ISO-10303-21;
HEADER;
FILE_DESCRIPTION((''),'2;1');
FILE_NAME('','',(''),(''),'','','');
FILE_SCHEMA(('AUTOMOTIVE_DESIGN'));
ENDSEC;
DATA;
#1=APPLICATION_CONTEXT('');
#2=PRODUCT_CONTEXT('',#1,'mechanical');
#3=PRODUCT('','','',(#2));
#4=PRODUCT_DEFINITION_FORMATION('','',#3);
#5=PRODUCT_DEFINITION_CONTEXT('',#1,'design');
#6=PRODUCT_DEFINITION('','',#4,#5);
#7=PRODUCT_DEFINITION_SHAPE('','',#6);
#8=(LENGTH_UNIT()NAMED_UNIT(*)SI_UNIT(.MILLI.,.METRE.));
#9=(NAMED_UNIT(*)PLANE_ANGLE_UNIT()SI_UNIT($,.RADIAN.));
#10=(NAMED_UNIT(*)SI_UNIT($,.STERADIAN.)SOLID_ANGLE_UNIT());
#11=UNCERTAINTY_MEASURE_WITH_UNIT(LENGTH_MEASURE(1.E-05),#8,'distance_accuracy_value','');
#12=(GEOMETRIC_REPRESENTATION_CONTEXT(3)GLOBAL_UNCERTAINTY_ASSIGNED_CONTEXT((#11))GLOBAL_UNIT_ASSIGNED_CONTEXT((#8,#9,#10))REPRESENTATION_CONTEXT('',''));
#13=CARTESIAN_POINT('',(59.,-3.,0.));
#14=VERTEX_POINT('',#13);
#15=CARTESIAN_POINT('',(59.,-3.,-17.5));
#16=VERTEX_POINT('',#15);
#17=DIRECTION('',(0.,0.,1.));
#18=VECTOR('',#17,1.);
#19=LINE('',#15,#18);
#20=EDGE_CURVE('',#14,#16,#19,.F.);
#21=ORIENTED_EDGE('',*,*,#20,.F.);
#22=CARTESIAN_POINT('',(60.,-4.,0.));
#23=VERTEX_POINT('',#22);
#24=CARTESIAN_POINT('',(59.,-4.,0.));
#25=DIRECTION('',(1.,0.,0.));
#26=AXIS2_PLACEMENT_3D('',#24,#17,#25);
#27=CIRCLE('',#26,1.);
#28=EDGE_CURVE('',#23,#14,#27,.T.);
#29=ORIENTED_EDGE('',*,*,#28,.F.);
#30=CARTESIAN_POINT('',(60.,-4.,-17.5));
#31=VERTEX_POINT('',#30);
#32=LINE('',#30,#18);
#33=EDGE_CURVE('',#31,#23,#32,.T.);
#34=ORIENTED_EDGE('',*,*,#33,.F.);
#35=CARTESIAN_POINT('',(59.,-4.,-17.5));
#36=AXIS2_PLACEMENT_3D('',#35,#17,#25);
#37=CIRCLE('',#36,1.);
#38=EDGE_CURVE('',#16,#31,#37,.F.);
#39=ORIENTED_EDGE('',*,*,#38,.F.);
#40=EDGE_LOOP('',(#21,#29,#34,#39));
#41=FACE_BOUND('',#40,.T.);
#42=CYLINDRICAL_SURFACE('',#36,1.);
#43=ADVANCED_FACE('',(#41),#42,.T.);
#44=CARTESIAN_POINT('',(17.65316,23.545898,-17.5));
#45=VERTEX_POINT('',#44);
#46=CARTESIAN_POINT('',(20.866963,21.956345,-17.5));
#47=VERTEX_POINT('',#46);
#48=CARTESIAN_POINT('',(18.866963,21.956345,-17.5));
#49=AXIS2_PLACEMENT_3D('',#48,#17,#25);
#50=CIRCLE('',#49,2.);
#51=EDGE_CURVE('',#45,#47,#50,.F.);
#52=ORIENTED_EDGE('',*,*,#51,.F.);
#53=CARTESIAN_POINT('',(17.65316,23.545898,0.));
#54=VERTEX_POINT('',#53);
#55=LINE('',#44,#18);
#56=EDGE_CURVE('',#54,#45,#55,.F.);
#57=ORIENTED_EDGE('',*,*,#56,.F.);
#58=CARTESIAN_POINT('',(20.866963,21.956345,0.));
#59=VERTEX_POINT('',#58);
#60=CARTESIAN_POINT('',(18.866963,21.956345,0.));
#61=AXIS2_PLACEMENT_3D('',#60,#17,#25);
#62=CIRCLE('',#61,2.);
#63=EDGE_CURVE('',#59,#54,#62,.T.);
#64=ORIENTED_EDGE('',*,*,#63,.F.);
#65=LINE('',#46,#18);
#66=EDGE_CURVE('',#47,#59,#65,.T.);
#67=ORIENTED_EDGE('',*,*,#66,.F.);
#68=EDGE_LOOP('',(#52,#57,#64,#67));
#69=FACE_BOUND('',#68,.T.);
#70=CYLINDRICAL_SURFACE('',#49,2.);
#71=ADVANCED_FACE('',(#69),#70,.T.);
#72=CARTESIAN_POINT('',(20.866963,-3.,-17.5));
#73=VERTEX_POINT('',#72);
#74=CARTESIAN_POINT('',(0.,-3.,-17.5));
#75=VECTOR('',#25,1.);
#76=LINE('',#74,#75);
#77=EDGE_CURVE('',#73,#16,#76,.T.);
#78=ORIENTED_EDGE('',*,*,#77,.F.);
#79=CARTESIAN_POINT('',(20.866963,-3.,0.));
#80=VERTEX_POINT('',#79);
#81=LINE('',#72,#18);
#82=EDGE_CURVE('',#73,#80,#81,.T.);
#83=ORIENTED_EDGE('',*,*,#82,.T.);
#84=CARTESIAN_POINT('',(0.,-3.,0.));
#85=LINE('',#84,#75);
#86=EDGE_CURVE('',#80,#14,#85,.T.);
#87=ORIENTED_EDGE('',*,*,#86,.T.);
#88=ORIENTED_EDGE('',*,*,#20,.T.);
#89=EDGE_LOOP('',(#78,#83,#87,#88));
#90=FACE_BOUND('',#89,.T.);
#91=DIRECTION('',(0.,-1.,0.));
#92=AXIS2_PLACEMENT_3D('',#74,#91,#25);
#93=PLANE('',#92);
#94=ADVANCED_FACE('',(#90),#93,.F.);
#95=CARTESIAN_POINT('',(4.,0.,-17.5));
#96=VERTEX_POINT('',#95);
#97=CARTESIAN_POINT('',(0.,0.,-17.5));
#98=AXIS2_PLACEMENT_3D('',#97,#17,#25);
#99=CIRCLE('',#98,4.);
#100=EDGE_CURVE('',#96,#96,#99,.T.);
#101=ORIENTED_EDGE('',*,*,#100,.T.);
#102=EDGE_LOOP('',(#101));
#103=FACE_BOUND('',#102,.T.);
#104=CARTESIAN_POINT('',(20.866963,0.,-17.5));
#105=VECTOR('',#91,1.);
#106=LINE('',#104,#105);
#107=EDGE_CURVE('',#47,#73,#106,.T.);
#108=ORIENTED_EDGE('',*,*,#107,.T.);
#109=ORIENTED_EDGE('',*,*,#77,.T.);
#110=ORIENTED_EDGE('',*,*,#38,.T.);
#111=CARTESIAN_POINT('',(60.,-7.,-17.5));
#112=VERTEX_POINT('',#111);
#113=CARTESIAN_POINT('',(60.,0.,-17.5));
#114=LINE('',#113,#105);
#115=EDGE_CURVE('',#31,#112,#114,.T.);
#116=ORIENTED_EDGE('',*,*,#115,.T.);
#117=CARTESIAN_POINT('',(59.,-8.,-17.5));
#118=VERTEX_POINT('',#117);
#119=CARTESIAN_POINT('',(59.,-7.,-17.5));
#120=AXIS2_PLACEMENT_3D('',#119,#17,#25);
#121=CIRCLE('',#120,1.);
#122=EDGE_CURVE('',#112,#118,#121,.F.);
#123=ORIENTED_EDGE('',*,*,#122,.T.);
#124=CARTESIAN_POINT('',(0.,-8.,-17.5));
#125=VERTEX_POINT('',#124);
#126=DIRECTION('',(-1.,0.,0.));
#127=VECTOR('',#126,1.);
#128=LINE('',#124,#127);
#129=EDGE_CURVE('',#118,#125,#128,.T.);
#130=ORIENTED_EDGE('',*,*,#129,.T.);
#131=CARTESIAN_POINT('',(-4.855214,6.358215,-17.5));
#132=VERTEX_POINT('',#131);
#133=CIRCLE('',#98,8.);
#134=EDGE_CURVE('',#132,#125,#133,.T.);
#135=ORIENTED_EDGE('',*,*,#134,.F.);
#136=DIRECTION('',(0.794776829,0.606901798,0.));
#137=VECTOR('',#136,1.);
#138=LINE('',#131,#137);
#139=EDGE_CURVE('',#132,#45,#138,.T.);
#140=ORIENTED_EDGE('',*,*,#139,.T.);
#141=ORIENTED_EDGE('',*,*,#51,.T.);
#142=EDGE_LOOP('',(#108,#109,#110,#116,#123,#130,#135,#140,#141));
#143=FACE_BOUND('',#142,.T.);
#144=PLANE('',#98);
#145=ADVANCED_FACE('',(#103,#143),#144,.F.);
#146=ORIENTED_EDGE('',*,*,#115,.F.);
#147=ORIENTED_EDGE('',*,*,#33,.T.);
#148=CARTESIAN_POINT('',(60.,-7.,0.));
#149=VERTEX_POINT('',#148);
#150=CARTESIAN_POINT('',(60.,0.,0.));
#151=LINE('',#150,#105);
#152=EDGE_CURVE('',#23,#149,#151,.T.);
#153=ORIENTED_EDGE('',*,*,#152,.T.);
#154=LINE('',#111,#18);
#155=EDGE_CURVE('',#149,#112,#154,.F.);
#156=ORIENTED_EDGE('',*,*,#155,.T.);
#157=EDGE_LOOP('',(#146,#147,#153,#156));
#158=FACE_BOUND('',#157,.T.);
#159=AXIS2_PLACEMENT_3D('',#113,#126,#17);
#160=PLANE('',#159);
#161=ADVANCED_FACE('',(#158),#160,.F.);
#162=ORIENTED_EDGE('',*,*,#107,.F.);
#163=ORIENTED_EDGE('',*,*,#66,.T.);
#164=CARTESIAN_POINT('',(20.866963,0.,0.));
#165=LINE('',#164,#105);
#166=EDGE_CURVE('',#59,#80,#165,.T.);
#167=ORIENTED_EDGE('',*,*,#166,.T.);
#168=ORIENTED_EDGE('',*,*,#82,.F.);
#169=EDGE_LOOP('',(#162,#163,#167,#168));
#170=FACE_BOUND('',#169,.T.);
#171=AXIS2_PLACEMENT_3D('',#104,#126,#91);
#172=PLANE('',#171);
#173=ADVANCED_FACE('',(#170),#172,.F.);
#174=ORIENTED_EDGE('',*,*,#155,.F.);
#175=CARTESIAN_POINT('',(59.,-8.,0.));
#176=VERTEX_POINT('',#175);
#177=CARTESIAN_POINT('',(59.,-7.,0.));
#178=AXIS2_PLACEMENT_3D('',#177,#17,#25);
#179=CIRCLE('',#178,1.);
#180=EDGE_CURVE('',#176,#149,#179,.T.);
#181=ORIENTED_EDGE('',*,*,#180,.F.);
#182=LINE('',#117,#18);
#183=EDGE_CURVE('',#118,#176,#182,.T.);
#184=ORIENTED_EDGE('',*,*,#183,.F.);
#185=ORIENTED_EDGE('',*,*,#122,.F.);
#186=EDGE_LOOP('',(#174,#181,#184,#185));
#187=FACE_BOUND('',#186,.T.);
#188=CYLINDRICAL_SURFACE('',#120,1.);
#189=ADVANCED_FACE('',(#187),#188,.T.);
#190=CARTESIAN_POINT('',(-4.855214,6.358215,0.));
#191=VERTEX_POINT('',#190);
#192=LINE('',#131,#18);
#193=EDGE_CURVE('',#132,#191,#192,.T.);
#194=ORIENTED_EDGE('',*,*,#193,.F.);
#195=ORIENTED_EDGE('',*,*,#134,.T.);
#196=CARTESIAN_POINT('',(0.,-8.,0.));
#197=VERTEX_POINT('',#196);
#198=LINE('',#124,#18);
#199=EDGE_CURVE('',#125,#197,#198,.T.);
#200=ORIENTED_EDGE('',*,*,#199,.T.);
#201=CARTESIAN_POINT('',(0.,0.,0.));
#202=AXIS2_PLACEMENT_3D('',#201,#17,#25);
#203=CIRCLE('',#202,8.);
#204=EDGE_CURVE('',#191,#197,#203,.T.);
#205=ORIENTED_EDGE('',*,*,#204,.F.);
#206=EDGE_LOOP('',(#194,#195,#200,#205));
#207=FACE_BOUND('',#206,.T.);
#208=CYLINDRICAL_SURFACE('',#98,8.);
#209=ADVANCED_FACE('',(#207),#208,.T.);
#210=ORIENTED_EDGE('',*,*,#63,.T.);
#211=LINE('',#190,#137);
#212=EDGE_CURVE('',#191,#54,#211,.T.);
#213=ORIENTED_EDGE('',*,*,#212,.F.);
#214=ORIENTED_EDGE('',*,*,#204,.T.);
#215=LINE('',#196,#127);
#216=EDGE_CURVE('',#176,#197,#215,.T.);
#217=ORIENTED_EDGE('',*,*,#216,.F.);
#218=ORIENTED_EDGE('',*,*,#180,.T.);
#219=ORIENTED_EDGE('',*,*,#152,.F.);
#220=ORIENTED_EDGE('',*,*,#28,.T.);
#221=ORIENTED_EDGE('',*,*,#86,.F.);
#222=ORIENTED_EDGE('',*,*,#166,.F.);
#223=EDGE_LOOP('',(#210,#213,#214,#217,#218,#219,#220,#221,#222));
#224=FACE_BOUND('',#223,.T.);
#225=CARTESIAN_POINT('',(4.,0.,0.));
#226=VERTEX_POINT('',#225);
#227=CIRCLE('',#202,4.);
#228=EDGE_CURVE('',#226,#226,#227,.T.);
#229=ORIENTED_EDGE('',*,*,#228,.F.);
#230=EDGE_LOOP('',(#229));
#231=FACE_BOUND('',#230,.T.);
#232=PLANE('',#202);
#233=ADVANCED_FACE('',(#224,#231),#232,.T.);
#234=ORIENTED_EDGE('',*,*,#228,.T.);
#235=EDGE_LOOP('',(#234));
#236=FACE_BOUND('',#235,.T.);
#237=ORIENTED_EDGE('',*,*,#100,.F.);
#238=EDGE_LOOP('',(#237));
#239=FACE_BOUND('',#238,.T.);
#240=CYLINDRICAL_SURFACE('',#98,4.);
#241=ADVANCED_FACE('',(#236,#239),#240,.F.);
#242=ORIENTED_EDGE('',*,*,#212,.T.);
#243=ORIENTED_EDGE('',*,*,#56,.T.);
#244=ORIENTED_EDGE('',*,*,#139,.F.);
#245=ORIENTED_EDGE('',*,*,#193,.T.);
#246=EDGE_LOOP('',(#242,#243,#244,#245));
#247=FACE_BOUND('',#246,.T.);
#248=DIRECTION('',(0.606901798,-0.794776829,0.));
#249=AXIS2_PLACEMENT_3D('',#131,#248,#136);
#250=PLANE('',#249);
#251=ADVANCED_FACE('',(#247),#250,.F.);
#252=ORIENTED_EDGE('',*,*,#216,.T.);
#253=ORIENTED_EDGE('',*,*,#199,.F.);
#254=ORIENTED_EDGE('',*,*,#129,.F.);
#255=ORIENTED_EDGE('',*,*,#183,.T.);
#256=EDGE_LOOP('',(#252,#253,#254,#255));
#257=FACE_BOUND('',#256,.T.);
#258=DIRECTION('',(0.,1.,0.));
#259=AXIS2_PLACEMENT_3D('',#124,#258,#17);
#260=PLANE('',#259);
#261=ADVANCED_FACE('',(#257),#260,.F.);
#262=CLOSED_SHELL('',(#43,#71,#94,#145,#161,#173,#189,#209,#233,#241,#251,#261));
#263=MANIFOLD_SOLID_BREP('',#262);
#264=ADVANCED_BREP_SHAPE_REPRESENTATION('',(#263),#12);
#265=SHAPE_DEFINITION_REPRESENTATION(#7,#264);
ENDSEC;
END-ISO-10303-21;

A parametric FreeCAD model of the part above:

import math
import FreeCAD as App
import Part
import Sketcher

V = App.Vector


def edges_at(feature, points):
    """Names of the edges that pass closest to the given points."""
    edges = feature.Shape.Edges
    near = lambda p: min(range(len(edges)), key=lambda i: edges[i].distToShape(Part.Vertex(*p))[0])
    return sorted({f"Edge{near(p) + 1}" for p in points})

doc = App.newDocument("Part")
body = doc.addObject("PartDesign::Body", "Body")

# Sketch on XY plane
sketch1 = body.newObject("Sketcher::SketchObject", "Sketch")
sketch1.AttachmentSupport = (doc.getObject("XY_Plane"), [""])
sketch1.MapMode = "FlatFace"
sketch1.addGeometry([
    Part.LineSegment(V(20.9, 26, 0), V(-4.9, 6.4, 0)),  # 0
    Part.ArcOfCircle(Part.Circle(V(0, 0, 0), V(0, 0, 1), 8), math.radians(127), math.radians(270)),  # 1
    Part.LineSegment(V(0, -8, 0), V(60, -8, 0)),  # 2
    Part.LineSegment(V(60, -8, 0), V(60, -3, 0)),  # 3
    Part.LineSegment(V(60, -3, 0), V(20.9, -3, 0)),  # 4
    Part.LineSegment(V(20.9, -3, 0), V(20.9, 26, 0)),  # 5
    Part.Circle(V(0, 0, 0), V(0, 0, 1), 4),  # 6
], False)
sketch1.addConstraint([
    Sketcher.Constraint("Tangent", 0, 2, 1, 1),
    Sketcher.Constraint("Tangent", 1, 2, 2, 1),
    Sketcher.Constraint("Coincident", 2, 2, 3, 1),
    Sketcher.Constraint("Coincident", 3, 2, 4, 1),
    Sketcher.Constraint("Coincident", 4, 2, 5, 1),
    Sketcher.Constraint("Coincident", 5, 2, 0, 1),
    Sketcher.Constraint("Horizontal", 2),
    Sketcher.Constraint("Vertical", 3),
    Sketcher.Constraint("Horizontal", 4),
    Sketcher.Constraint("Vertical", 5),
    Sketcher.Constraint("Coincident", 1, 3, -1, 1),
    Sketcher.Constraint("Coincident", 6, 3, -1, 1),
    Sketcher.Constraint("Diameter", 6, 8.0),
    Sketcher.Constraint("Radius", 1, 8.0),
    Sketcher.Constraint("DistanceX", 2, 1, 2, 2, 60.0),
    Sketcher.Constraint("DistanceY", 3, 1, 3, 2, 5.0),
    Sketcher.Constraint("DistanceY", 5, 1, 5, 2, 29.0),
    Sketcher.Constraint("DistanceX", 4, 2, 4, 1, 39.133037),
])
pad1 = body.newObject("PartDesign::Pad", "Pad")
pad1.Profile = sketch1
pad1.Length = 17.5
pad1.Reversed = True
doc.recompute()

fillet = body.newObject("PartDesign::Fillet", "Fillet")
fillet.Base = (pad1, edges_at(pad1, [(20.867, 26, -8.75)]))
fillet.Radius = 2
doc.recompute()

fillet2 = body.newObject("PartDesign::Fillet", "Fillet001")
fillet2.Base = (fillet, edges_at(fillet, [(60, -3, -8.75), (60, -8, -8.75)]))
fillet2.Radius = 1

doc.recompute()
